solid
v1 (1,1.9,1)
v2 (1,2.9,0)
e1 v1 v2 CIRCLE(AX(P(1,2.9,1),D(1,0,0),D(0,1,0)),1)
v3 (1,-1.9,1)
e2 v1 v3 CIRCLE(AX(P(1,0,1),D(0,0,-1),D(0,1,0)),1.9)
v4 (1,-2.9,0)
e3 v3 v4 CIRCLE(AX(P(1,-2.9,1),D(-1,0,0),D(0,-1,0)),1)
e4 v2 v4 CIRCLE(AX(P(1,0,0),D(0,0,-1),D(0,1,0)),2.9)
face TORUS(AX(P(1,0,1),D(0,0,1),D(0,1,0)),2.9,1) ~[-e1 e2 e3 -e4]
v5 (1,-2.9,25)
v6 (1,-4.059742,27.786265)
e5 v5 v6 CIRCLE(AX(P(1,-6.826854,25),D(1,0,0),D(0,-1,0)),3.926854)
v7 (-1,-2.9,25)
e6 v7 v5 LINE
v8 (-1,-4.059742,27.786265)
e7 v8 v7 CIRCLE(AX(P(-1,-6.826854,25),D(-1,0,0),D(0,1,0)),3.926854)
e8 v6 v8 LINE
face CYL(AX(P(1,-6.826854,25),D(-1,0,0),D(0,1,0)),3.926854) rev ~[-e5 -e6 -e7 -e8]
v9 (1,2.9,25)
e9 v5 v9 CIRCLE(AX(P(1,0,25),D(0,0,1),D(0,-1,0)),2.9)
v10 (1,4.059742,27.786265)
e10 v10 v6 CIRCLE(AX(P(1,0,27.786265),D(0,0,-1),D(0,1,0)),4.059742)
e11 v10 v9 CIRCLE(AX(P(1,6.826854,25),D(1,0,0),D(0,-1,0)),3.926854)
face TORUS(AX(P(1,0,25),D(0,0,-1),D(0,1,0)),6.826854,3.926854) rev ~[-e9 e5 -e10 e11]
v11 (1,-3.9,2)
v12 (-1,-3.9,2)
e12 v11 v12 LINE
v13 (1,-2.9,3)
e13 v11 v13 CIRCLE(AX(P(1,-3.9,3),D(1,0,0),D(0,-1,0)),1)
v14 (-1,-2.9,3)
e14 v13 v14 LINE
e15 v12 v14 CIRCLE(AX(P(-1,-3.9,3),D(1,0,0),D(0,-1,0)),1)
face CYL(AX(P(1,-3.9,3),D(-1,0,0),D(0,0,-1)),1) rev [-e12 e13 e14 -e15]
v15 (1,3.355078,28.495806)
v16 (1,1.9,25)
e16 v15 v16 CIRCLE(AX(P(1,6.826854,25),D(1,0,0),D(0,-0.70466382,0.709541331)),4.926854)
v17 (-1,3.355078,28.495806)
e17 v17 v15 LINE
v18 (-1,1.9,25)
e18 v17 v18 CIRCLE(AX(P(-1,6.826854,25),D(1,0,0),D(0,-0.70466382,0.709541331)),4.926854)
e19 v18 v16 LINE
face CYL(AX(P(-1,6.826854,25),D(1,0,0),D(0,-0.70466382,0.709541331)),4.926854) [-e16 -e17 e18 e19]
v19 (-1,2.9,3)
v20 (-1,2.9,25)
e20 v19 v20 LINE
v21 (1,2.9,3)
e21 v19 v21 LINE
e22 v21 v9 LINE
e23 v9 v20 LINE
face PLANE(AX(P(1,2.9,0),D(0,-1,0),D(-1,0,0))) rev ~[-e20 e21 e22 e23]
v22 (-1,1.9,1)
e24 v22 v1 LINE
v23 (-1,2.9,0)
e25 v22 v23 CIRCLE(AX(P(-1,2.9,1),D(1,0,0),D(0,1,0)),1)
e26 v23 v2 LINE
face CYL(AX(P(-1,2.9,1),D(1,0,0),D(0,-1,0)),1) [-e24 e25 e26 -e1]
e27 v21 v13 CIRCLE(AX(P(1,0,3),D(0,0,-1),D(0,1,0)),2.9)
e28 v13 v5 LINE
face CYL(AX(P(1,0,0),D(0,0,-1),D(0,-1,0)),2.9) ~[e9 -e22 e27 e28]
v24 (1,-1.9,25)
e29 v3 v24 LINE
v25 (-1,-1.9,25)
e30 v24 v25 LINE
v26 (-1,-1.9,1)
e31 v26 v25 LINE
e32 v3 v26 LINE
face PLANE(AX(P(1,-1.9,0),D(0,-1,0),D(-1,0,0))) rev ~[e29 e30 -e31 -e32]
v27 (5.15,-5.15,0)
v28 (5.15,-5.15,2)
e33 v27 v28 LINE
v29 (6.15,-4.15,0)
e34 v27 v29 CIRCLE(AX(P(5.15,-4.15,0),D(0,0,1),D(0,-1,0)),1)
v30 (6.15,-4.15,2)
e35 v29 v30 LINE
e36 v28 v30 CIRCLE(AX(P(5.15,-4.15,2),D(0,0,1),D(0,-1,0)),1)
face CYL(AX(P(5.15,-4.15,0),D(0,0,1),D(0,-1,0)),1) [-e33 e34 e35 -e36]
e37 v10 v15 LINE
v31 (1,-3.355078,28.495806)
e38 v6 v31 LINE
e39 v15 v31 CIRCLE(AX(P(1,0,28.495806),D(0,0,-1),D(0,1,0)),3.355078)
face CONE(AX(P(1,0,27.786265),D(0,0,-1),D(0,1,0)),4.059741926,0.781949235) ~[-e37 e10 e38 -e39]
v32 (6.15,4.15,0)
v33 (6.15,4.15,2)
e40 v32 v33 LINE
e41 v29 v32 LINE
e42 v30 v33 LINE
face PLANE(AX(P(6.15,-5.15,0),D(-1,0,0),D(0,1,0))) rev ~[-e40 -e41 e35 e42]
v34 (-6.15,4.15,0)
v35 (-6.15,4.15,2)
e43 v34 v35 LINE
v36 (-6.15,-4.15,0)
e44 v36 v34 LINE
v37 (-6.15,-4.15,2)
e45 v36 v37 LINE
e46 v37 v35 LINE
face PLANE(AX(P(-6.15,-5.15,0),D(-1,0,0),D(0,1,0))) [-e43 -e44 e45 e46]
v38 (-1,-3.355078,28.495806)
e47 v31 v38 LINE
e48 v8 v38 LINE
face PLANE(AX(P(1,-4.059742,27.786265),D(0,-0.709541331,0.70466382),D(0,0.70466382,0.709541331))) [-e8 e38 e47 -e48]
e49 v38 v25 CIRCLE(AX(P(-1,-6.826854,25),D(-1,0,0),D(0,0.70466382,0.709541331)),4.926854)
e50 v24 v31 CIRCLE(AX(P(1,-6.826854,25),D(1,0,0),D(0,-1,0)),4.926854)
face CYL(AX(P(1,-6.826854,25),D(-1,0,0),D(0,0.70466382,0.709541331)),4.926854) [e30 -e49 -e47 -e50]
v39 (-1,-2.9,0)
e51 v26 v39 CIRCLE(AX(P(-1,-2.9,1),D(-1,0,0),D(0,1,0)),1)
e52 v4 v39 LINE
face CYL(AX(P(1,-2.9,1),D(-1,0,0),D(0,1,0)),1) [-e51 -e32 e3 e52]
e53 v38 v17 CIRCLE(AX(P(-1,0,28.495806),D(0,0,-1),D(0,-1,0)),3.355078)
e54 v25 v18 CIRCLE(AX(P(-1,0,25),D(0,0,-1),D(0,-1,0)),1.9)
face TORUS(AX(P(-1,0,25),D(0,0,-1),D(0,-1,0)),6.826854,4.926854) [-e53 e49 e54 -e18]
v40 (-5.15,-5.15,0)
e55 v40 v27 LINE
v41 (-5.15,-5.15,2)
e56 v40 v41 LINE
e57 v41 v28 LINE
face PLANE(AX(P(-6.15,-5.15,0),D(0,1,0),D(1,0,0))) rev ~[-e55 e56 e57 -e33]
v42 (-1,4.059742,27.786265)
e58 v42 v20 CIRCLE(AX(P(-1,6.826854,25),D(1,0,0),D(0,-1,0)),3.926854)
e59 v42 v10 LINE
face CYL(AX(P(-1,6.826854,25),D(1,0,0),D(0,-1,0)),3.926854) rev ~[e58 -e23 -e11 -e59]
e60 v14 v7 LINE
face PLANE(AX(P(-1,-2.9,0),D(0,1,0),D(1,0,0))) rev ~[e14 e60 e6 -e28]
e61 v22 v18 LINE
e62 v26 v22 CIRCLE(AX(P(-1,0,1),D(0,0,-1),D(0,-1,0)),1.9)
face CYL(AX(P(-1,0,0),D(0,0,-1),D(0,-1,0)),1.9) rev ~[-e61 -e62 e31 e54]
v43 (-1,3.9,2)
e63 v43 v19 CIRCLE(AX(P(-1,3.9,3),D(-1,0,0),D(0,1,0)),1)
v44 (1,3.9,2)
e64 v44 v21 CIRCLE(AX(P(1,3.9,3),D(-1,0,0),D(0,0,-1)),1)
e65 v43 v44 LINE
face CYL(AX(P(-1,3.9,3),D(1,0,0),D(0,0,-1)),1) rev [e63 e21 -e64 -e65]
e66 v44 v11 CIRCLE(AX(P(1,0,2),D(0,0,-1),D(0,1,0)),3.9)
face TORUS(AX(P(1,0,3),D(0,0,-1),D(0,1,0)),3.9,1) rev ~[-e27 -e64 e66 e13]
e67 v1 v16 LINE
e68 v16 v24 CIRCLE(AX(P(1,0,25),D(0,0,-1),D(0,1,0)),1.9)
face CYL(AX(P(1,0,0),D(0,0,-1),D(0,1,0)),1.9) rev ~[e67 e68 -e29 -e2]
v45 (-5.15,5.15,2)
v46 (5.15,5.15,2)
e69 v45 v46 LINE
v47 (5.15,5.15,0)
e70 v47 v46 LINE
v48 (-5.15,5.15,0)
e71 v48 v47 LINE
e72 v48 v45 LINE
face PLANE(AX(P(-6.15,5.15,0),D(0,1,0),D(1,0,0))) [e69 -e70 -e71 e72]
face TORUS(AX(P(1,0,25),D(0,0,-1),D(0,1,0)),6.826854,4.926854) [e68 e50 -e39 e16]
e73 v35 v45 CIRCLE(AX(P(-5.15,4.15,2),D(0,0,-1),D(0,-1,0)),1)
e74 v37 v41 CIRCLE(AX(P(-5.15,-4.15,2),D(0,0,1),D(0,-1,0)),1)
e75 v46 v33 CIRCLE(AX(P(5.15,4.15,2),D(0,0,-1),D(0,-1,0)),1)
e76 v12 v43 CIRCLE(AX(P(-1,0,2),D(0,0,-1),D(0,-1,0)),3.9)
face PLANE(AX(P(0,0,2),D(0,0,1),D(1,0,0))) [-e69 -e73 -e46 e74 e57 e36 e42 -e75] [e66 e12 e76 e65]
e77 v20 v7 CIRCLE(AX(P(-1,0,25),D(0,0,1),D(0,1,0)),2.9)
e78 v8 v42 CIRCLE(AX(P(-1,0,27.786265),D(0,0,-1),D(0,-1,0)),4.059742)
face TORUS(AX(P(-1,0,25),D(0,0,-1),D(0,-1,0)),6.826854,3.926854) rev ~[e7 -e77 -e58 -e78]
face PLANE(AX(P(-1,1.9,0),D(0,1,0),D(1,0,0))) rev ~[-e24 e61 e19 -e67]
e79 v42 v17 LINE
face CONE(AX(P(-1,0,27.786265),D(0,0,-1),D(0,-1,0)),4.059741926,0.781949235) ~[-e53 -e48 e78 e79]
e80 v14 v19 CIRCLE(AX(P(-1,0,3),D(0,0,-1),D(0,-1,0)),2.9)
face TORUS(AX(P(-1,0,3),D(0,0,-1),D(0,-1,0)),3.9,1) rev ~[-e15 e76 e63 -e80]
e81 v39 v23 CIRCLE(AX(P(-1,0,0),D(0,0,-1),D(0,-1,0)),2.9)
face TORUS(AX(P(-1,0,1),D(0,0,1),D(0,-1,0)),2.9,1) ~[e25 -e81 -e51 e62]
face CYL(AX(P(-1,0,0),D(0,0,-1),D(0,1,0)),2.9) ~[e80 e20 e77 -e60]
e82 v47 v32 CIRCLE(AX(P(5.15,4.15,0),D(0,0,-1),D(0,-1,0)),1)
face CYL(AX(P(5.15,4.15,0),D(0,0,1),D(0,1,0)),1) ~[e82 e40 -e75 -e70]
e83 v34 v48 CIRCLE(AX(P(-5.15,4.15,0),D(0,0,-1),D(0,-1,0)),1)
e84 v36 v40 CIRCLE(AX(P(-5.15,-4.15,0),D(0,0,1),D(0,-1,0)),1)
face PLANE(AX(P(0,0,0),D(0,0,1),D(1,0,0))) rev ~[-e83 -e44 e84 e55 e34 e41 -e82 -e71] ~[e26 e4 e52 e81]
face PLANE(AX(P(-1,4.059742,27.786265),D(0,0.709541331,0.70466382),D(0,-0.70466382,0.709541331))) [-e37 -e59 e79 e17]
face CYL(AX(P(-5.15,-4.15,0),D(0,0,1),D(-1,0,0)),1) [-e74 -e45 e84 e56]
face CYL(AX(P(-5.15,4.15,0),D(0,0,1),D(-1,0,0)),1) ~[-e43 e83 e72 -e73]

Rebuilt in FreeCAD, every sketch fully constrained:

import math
import FreeCAD as App
import Part
import Sketcher
Q = App.Units.Quantity


def edges_at(feature, points):
    """Names of the edges that pass closest to the given points."""
    edges = feature.Shape.Edges
    near = lambda p: min(range(len(edges)), key=lambda i: edges[i].distToShape(Part.Vertex(*p))[0])
    return sorted({f"Edge{near(p) + 1}" for p in points})


def add_polygon(sketch, points):
    """Adds a closed chain of lines whose ends are joined by coincident constraints."""
    first, n = sketch.GeometryCount, len(points)
    for a, b in zip(points, points[1:] + points[:1]):
        sketch.addGeometry(Part.LineSegment(App.Vector(*a, 0), App.Vector(*b, 0)), False)
    for i in range(n):
        sketch.addConstraint(Sketcher.Constraint("Coincident", first + i, 2, first + (i + 1) % n, 1))

doc = App.newDocument("Part")
body = doc.addObject("PartDesign::Body", "Body")

sketch1 = doc.addObject("Sketcher::SketchObject", "Sketch")
body.addObject(sketch1)
sketch1.AttachmentSupport = (doc.XY_Plane, [""])
sketch1.MapMode = "FlatFace"
add_polygon(sketch1, [(-6.2, 5.2), (-6.2, -5.2), (6.2, -5.2), (6.2, 5.2)])
sketch1.addGeometry(Part.LineSegment(App.Vector(-1, 2.9, 0), App.Vector(1, 2.9, 0)), False)
sketch1.addGeometry(Part.ArcOfCircle(Part.Circle(App.Vector(1, 0, 0), App.Vector(0, 0, 1), 2.9), math.radians(-90), math.radians(90)), False)
sketch1.addGeometry(Part.LineSegment(App.Vector(1, -2.9, 0), App.Vector(-1, -2.9, 0)), False)
sketch1.addGeometry(Part.ArcOfCircle(Part.Circle(App.Vector(-1, 0, 0), App.Vector(0, 0, 1), 2.9), math.radians(90), math.radians(270)), False)
sketch1.addConstraint([
    Sketcher.Constraint("Tangent", 4, 2, 5, 2),
    Sketcher.Constraint("Tangent", 5, 1, 6, 1),
    Sketcher.Constraint("Tangent", 6, 2, 7, 2),
    Sketcher.Constraint("Tangent", 7, 1, 4, 1),
    Sketcher.Constraint("Vertical", 0),
    Sketcher.Constraint("Horizontal", 1),
    Sketcher.Constraint("Vertical", 2),
    Sketcher.Constraint("Horizontal", 3),
    Sketcher.Constraint("Horizontal", 4),
    Sketcher.Constraint("Horizontal", 6),
    Sketcher.Constraint("Symmetric", 5, 3, 7, 3, -1, 1),
    Sketcher.Constraint("Symmetric", 0, 2, 2, 2, -1, 1),
    Sketcher.Constraint("Radius", 5, Q("2.9 mm")),
    Sketcher.Constraint("DistanceX", 4, 1, 4, 2, Q("2 mm")),
    Sketcher.Constraint("DistanceX", 1, 1, 1, 2, Q("12.3 mm")),
    Sketcher.Constraint("DistanceY", 0, 2, 0, 1, Q("10.3 mm")),
])
pad1 = doc.addObject("PartDesign::Pad", "Pad")
body.addObject(pad1)
pad1.Profile = sketch1
pad1.Length = 2

sketch2 = doc.addObject("Sketcher::SketchObject", "Sketch001")
body.addObject(sketch2)
sketch2.AttachmentSupport = (doc.XY_Plane, [""])
sketch2.MapMode = "FlatFace"
sketch2.addGeometry([
    Part.LineSegment(App.Vector(-1, -2.9, 0), App.Vector(1, -2.9, 0)),
    Part.ArcOfCircle(Part.Circle(App.Vector(1, 0, 0), App.Vector(0, 0, 1), 2.9), math.radians(-90), math.radians(90)),
    Part.LineSegment(App.Vector(1, 2.9, 0), App.Vector(-1, 2.9, 0)),
    Part.ArcOfCircle(Part.Circle(App.Vector(-1, 0, 0), App.Vector(0, 0, 1), 2.9), math.radians(90), math.radians(270)),
    Part.LineSegment(App.Vector(1, -1.9, 0), App.Vector(-1, -1.9, 0)),
    Part.ArcOfCircle(Part.Circle(App.Vector(-1, 0, 0), App.Vector(0, 0, 1), 1.9), math.radians(90), math.radians(270)),
    Part.LineSegment(App.Vector(-1, 1.9, 0), App.Vector(1, 1.9, 0)),
    Part.ArcOfCircle(Part.Circle(App.Vector(1, 0, 0), App.Vector(0, 0, 1), 1.9), math.radians(-90), math.radians(90)),
], False)
sketch2.addConstraint([
    Sketcher.Constraint("Tangent", 0, 2, 1, 1),
    Sketcher.Constraint("Tangent", 1, 2, 2, 1),
    Sketcher.Constraint("Tangent", 2, 2, 3, 1),
    Sketcher.Constraint("Tangent", 3, 2, 0, 1),
    Sketcher.Constraint("Tangent", 4, 2, 5, 2),
    Sketcher.Constraint("Tangent", 5, 1, 6, 1),
    Sketcher.Constraint("Tangent", 6, 2, 7, 2),
    Sketcher.Constraint("Tangent", 7, 1, 4, 1),
    Sketcher.Constraint("Horizontal", 0),
    Sketcher.Constraint("Horizontal", 2),
    Sketcher.Constraint("Horizontal", 4),
    Sketcher.Constraint("Horizontal", 6),
    Sketcher.Constraint("Coincident", 5, 3, 3, 3),
    Sketcher.Constraint("Symmetric", 1, 3, 3, 3, -1, 1),
    Sketcher.Constraint("Vertical", 7, 3, 0, 2),
    Sketcher.Constraint("Radius", 1, Q("2.9 mm")),
    Sketcher.Constraint("Radius", 5, Q("1.9 mm")),
    Sketcher.Constraint("DistanceX", 0, 1, 0, 2, Q("2 mm")),
])
pad2 = doc.addObject("PartDesign::Pad", "Pad001")
body.addObject(pad2)
pad2.Profile = sketch2
pad2.Length = 25
doc.recompute()

fillet = doc.addObject("PartDesign::Fillet", "Fillet")
body.addObject(fillet)
fillet.Base = (pad2, edges_at(pad2, [
    (-3.9, 0, 2),
    (-6.15, 5.15, 1),
    (6.15, 5.15, 1),
    (6.15, -5.15, 1),
    (-6.15, -5.15, 1),
    (2.9, 0, 0),
]))
fillet.Radius = 1

sketch3 = doc.addObject("Sketcher::SketchObject", "Sketch002")
body.addObject(sketch3)
sketch3.AttachmentSupport = (doc.XZ_Plane, [""])
sketch3.MapMode = "FlatFace"
sketch3.addGeometry([
    Part.ArcOfCircle(Part.Circle(App.Vector(7.8, 25, 0), App.Vector(0, 0, 1), 4.9), math.radians(135), math.radians(180)),
    Part.LineSegment(App.Vector(2.9, 25, 0), App.Vector(3.9, 25, 0)),
    Part.ArcOfCircle(Part.Circle(App.Vector(7.8, 25, 0), App.Vector(0, 0, 1), 3.9), math.radians(135), math.radians(180)),
    Part.LineSegment(App.Vector(5.1, 27.8, 0), App.Vector(4.4, 28.5, 0)),
], False)
sketch3.addConstraint([
    Sketcher.Constraint("Coincident", 0, 2, 1, 1),
    Sketcher.Constraint("Coincident", 1, 2, 2, 2),
    Sketcher.Constraint("Coincident", 2, 1, 3, 1),
    Sketcher.Constraint("Coincident", 3, 2, 0, 1),
    Sketcher.Constraint("Horizontal", 1),
    Sketcher.Constraint("Coincident", 2, 3, 0, 3),
    Sketcher.Constraint("Horizontal", 2, 3, 0, 2),
    Sketcher.Constraint("DistanceX", 1, 1, 1, 2, Q("1 mm")),
    Sketcher.Constraint("DistanceY", -1, 1, 0, 3, Q("25 mm")),
    Sketcher.Constraint("DistanceX", -1, 1, 0, 2, Q("2.9 mm")),
    Sketcher.Constraint("Radius", 0, Q("4.926854 mm")),
    Sketcher.Constraint("DistanceX", -1, 1, 2, 1, Q("5.059742 mm")),
    Sketcher.Constraint("DistanceX", -1, 1, 3, 2, Q("4.355078 mm")),
])

sketch4 = doc.addObject("Sketcher::SketchObject", "Sketch003")
body.addObject(sketch4)
sketch4.AttachmentSupport = (doc.XY_Plane, [""])
sketch4.MapMode = "FlatFace"
sketch4.AttachmentOffset = App.Placement(App.Vector(0, 0, 25), App.Rotation())
sketch4.addGeometry([
    Part.LineSegment(App.Vector(-1, 1.9, 0), App.Vector(1, 1.9, 0)),
    Part.ArcOfCircle(Part.Circle(App.Vector(1, 0, 0), App.Vector(0, 0, 1), 1.9), math.radians(-90), math.radians(90)),
    Part.LineSegment(App.Vector(1, -1.9, 0), App.Vector(-1, -1.9, 0)),
    Part.ArcOfCircle(Part.Circle(App.Vector(-1, 0, 0), App.Vector(0, 0, 1), 1.9), math.radians(90), math.radians(270)),
], False)
sketch4.addConstraint([
    Sketcher.Constraint("Tangent", 0, 2, 1, 2),
    Sketcher.Constraint("Tangent", 1, 1, 2, 1),
    Sketcher.Constraint("Tangent", 2, 2, 3, 2),
    Sketcher.Constraint("Tangent", 3, 1, 0, 1),
    Sketcher.Constraint("Horizontal", 0),
    Sketcher.Constraint("Horizontal", 2),
    Sketcher.Constraint("Symmetric", 1, 3, 3, 3, -1, 1),
    Sketcher.Constraint("Radius", 1, Q("1.9 mm")),
    Sketcher.Constraint("DistanceX", 0, 1, 0, 2, Q("2 mm")),
])
doc.recompute()

additivepipe = doc.addObject("PartDesign::AdditivePipe", "AdditivePipe")
body.addObject(additivepipe)
additivepipe.Profile = sketch3
additivepipe.Spine = (sketch4, ["Edge1", "Edge2", "Edge3", "Edge4"])

doc.recompute()
